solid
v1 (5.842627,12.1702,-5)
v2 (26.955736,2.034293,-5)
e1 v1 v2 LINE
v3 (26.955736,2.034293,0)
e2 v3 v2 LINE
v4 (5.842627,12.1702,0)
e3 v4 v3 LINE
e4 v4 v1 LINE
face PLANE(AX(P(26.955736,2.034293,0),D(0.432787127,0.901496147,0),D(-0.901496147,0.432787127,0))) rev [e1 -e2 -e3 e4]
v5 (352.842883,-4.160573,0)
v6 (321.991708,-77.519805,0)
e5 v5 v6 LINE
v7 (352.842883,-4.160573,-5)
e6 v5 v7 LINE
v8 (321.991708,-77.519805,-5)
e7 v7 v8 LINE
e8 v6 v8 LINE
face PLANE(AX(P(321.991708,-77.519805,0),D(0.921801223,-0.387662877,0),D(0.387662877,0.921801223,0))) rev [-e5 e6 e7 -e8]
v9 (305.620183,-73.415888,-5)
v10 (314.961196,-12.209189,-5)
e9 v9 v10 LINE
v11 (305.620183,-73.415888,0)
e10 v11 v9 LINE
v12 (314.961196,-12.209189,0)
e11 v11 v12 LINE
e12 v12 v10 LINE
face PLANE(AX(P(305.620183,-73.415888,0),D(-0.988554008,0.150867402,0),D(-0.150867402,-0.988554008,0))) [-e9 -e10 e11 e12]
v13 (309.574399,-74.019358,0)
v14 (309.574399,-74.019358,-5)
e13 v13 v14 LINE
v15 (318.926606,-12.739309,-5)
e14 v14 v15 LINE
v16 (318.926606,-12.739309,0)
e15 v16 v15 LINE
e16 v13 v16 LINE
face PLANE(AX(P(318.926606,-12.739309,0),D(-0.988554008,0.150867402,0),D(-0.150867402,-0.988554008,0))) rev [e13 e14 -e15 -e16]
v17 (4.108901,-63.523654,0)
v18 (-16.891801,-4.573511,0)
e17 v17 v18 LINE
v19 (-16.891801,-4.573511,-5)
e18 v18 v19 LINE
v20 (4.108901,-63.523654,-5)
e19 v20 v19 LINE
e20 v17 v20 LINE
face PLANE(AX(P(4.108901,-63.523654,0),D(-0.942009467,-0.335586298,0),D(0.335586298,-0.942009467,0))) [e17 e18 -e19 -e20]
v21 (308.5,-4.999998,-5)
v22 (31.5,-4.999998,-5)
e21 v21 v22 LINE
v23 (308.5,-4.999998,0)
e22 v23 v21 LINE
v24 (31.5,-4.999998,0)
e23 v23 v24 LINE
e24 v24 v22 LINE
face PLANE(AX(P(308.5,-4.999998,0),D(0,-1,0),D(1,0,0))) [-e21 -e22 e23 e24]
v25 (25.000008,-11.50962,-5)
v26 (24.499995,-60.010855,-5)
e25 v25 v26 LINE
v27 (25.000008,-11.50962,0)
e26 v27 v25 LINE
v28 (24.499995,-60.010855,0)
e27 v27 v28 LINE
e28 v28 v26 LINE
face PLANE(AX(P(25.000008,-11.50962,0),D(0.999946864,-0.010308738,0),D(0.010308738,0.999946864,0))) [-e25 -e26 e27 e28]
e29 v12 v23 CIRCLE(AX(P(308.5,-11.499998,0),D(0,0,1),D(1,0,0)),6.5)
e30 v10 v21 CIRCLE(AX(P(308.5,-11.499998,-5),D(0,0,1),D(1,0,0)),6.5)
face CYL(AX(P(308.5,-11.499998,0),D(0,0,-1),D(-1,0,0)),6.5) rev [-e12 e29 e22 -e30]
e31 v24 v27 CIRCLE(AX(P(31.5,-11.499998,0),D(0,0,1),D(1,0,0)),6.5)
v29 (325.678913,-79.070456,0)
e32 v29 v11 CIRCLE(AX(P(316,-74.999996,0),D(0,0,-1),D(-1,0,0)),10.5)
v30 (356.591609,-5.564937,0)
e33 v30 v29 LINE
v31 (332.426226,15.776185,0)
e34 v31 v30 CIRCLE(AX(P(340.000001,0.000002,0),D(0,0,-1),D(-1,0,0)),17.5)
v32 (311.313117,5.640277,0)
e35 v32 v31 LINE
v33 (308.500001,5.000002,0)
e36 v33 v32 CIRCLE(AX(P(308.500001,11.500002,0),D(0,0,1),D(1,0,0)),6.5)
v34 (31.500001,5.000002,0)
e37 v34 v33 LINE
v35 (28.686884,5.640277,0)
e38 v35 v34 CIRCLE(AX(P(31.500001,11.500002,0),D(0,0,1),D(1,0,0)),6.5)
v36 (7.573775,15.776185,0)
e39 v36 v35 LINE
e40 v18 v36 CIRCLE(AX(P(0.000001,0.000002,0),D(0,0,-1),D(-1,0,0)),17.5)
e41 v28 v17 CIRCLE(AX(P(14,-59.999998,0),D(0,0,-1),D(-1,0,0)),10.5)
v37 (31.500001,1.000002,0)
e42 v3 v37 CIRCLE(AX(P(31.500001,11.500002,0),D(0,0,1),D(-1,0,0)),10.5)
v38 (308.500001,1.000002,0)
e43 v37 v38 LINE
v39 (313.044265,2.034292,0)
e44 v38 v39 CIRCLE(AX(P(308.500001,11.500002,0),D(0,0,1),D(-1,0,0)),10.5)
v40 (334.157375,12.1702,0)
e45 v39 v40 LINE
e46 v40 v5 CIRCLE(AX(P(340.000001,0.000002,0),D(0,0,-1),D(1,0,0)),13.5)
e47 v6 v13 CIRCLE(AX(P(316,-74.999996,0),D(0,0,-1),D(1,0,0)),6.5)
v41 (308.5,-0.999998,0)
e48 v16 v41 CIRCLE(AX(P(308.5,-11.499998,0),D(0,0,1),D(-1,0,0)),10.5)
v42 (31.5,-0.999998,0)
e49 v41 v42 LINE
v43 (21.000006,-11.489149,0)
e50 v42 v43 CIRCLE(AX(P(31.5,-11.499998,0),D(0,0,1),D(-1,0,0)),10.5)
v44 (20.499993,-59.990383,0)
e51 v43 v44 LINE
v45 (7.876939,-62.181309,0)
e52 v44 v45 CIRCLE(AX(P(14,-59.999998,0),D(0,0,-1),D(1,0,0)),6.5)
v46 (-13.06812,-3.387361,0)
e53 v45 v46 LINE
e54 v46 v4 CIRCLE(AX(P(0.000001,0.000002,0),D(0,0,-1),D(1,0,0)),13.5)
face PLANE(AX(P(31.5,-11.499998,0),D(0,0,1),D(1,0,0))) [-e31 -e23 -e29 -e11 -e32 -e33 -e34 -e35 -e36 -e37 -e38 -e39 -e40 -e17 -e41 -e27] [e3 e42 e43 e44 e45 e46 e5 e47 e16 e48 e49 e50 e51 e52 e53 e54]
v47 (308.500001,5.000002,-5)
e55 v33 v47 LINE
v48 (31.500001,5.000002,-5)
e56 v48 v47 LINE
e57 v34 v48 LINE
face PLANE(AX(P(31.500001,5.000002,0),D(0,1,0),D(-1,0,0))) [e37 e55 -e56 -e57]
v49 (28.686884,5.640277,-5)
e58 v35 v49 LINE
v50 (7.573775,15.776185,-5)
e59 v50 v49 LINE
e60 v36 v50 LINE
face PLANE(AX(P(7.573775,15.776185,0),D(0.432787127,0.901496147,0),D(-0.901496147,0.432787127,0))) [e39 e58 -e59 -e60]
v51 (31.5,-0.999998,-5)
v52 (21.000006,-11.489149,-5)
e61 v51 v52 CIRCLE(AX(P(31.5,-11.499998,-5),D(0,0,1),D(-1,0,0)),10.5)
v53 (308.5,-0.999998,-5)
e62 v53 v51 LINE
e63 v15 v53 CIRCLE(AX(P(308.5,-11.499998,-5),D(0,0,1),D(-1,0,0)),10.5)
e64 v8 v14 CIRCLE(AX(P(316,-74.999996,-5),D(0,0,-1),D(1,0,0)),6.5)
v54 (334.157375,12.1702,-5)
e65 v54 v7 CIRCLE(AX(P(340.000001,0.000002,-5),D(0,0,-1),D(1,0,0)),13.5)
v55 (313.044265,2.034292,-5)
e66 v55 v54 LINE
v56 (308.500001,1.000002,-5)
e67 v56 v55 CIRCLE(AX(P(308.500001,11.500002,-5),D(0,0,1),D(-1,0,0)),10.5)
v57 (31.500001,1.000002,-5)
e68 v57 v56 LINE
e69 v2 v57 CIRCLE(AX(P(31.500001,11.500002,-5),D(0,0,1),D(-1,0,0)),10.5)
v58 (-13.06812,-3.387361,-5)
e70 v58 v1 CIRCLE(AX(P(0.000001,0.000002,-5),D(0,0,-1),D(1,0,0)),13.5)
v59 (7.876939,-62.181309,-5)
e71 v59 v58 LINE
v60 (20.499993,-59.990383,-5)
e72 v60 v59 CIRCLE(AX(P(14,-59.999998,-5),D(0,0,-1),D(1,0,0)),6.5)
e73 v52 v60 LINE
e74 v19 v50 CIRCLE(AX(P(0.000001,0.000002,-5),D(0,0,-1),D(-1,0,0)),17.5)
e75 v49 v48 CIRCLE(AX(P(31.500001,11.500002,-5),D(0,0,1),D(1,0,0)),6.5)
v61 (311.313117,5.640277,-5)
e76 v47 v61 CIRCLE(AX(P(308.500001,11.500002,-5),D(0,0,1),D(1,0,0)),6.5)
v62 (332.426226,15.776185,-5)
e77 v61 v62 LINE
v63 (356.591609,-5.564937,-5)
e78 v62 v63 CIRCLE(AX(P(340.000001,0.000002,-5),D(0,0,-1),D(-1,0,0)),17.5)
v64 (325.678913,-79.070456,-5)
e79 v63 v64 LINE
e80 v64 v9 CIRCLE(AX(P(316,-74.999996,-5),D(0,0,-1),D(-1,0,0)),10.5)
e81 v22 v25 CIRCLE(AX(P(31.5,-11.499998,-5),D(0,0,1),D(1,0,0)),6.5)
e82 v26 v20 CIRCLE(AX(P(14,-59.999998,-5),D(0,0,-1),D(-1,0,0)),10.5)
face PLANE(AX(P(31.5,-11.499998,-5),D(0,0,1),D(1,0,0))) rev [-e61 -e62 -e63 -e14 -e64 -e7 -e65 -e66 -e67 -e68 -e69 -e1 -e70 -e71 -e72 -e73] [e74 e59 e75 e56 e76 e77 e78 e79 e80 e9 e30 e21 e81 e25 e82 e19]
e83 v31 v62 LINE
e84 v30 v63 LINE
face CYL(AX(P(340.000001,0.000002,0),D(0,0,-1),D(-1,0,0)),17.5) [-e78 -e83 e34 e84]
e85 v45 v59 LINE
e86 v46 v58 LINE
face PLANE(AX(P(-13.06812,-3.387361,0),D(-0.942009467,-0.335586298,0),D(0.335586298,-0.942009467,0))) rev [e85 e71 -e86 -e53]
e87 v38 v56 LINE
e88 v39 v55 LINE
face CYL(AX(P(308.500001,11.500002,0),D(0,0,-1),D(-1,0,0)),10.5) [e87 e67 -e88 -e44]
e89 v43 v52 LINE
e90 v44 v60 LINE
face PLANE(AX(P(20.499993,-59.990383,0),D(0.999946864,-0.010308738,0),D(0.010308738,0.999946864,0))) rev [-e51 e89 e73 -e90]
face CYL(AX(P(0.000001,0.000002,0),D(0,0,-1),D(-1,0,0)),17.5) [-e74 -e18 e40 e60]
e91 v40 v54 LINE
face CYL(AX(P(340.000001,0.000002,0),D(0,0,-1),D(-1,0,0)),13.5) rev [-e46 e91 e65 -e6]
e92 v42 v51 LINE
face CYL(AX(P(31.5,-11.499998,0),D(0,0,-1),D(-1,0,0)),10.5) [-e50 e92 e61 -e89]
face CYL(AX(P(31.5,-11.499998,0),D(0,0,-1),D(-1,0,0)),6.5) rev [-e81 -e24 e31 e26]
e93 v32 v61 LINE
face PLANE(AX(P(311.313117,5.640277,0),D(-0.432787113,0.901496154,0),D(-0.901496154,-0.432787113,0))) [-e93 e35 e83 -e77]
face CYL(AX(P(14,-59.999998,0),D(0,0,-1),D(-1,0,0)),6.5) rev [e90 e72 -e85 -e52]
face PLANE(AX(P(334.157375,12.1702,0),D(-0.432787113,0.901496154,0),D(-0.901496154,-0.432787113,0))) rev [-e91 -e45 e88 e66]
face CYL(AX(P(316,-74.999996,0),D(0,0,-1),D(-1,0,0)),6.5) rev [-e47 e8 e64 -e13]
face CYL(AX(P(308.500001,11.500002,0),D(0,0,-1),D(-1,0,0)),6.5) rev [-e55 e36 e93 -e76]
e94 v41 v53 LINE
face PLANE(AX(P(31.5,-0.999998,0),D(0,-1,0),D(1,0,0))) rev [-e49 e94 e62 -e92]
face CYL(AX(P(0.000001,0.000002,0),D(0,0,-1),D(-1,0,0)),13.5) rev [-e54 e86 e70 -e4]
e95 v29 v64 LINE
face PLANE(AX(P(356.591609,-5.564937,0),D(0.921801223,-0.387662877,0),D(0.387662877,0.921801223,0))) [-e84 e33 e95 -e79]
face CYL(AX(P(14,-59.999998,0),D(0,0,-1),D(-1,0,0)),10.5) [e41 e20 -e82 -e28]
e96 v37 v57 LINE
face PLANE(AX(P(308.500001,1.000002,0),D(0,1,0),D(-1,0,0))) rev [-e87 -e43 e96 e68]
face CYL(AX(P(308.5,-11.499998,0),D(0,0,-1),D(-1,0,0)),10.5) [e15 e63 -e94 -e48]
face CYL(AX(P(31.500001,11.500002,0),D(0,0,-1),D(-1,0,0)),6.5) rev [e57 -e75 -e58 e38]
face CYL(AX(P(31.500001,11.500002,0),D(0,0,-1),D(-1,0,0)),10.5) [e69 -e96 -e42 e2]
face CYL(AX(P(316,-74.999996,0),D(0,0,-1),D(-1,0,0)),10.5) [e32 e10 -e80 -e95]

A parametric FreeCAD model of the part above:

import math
import FreeCAD as App
import Part
import Sketcher

V = App.Vector

doc = App.newDocument("Part")
body = doc.addObject("PartDesign::Body", "Body")

# Sketch on XY plane
sketch1 = body.newObject("Sketcher::SketchObject", "Sketch")
sketch1.AttachmentSupport = (doc.getObject("XY_Plane"), [""])
sketch1.MapMode = "FlatFace"
sketch1.AttachmentOffset = App.Placement(V(0, 0, -5), App.Rotation())
sketch1.addGeometry([
    Part.LineSegment(V(25.000008, -11.50962, 0), V(24.499995, -60.010855, 0)),  # 0
    Part.ArcOfCircle(Part.Circle(V(14, -59.999998, 0), V(0, 0, 1), 10.5), math.radians(-160.391806), math.radians(-0.059246)),  # 1
    Part.LineSegment(V(4.108901, -63.523654, 0), V(-16.891801, -4.573511, 0)),  # 2
    Part.ArcOfCircle(Part.Circle(V(0.000001, 0.000002, 0), V(0, 0, 1), 17.5), math.radians(64.355431), math.radians(195.149802)),  # 3
    Part.LineSegment(V(7.573775, 15.776185, 0), V(28.686884, 5.640277, 0)),  # 4
    Part.ArcOfCircle(Part.Circle(V(31.500001, 11.500002, 0), V(0, 0, 1), 6.5), math.radians(-115.644569), math.radians(-90)),  # 5
    Part.LineSegment(V(31.500001, 5.000002, 0), V(308.500001, 5.000002, 0)),  # 6
    Part.ArcOfCircle(Part.Circle(V(308.500001, 11.500002, 0), V(0, 0, 1), 6.5), math.radians(-90), math.radians(-64.355432)),  # 7
    Part.LineSegment(V(311.313117, 5.640277, 0), V(332.426226, 15.776185, 0)),  # 8
    Part.ArcOfCircle(Part.Circle(V(340.000001, 0.000002, 0), V(0, 0, 1), 17.5), math.radians(-18.541804), math.radians(115.644568)),  # 9
    Part.LineSegment(V(356.591609, -5.564937, 0), V(325.678913, -79.070456, 0)),  # 10
    Part.ArcOfCircle(Part.Circle(V(316, -74.999996, 0), V(0, 0, 1), 10.5), math.radians(171.322803), math.radians(337.190845)),  # 11
    Part.LineSegment(V(305.620183, -73.415888, 0), V(314.961196, -12.209189, 0)),  # 12
    Part.ArcOfCircle(Part.Circle(V(308.5, -11.499998, 0), V(0, 0, 1), 6.5), math.radians(-6.263802), math.radians(90)),  # 13
    Part.LineSegment(V(308.5, -4.999998, 0), V(31.5, -4.999998, 0)),  # 14
    Part.ArcOfCircle(Part.Circle(V(31.5, -11.499998, 0), V(0, 0, 1), 6.5), math.radians(90), math.radians(180.084815)),  # 15
    Part.ArcOfCircle(Part.Circle(V(31.5, -11.499998, 0), V(0, 0, 1), 10.5), math.radians(90), math.radians(179.940801)),  # 16
    Part.LineSegment(V(31.5, -0.999998, 0), V(308.5, -0.999998, 0)),  # 17
    Part.ArcOfCircle(Part.Circle(V(308.5, -11.499998, 0), V(0, 0, 1), 10.5), math.radians(-6.778401), math.radians(90)),  # 18
    Part.LineSegment(V(318.926606, -12.739309, 0), V(309.574399, -74.019358, 0)),  # 19
    Part.ArcOfCircle(Part.Circle(V(316, -74.999996, 0), V(0, 0, 1), 6.5), math.radians(171.322803), math.radians(337.190845)),  # 20
    Part.LineSegment(V(321.991708, -77.519805, 0), V(352.842883, -4.160573, 0)),  # 21
    Part.ArcOfCircle(Part.Circle(V(340.000001, 0.000002, 0), V(0, 0, 1), 13.5), math.radians(-17.95023), math.radians(115.644568)),  # 22
    Part.LineSegment(V(334.157375, 12.1702, 0), V(313.044265, 2.034292, 0)),  # 23
    Part.ArcOfCircle(Part.Circle(V(308.500001, 11.500002, 0), V(0, 0, 1), 10.5), math.radians(-90), math.radians(-64.355432)),  # 24
    Part.LineSegment(V(308.500001, 1.000002, 0), V(31.500001, 1.000002, 0)),  # 25
    Part.ArcOfCircle(Part.Circle(V(31.500001, 11.500002, 0), V(0, 0, 1), 10.5), math.radians(-115.644569), math.radians(-90)),  # 26
    Part.LineSegment(V(26.955736, 2.034293, 0), V(5.842627, 12.1702, 0)),  # 27
    Part.ArcOfCircle(Part.Circle(V(0.000001, 0.000002, 0), V(0, 0, 1), 13.5), math.radians(64.355431), math.radians(194.531712)),  # 28
    Part.LineSegment(V(-13.06812, -3.387361, 0), V(7.876939, -62.181309, 0)),  # 29
    Part.ArcOfCircle(Part.Circle(V(14, -59.999998, 0), V(0, 0, 1), 6.5), math.radians(-160.391806), math.radians(0.084756)),  # 30
    Part.LineSegment(V(20.499993, -59.990383, 0), V(21.000006, -11.489149, 0)),  # 31
], False)
sketch1.addConstraint([
    Sketcher.Constraint("Coincident", 0, 2, 1, 2),
    Sketcher.Constraint("Coincident", 1, 1, 2, 1),
    Sketcher.Constraint("Coincident", 2, 2, 3, 2),
    Sketcher.Constraint("Coincident", 3, 1, 4, 1),
    Sketcher.Constraint("Coincident", 4, 2, 5, 1),
    Sketcher.Constraint("Coincident", 5, 2, 6, 1),
    Sketcher.Constraint("Coincident", 6, 2, 7, 1),
    Sketcher.Constraint("Coincident", 7, 2, 8, 1),
    Sketcher.Constraint("Coincident", 8, 2, 9, 2),
    Sketcher.Constraint("Coincident", 9, 1, 10, 1),
    Sketcher.Constraint("Coincident", 10, 2, 11, 2),
    Sketcher.Constraint("Coincident", 11, 1, 12, 1),
    Sketcher.Constraint("Coincident", 12, 2, 13, 1),
    Sketcher.Constraint("Coincident", 13, 2, 14, 1),
    Sketcher.Constraint("Coincident", 14, 2, 15, 1),
    Sketcher.Constraint("Coincident", 15, 2, 0, 1),
    Sketcher.Constraint("Coincident", 16, 1, 17, 1),
    Sketcher.Constraint("Coincident", 17, 2, 18, 2),
    Sketcher.Constraint("Coincident", 18, 1, 19, 1),
    Sketcher.Constraint("Coincident", 19, 2, 20, 1),
    Sketcher.Constraint("Coincident", 20, 2, 21, 1),
    Sketcher.Constraint("Coincident", 21, 2, 22, 1),
    Sketcher.Constraint("Coincident", 22, 2, 23, 1),
    Sketcher.Constraint("Coincident", 23, 2, 24, 2),
    Sketcher.Constraint("Coincident", 24, 1, 25, 1),
    Sketcher.Constraint("Coincident", 25, 2, 26, 2),
    Sketcher.Constraint("Coincident", 26, 1, 27, 1),
    Sketcher.Constraint("Coincident", 27, 2, 28, 1),
    Sketcher.Constraint("Coincident", 28, 2, 29, 1),
    Sketcher.Constraint("Coincident", 29, 2, 30, 1),
    Sketcher.Constraint("Coincident", 30, 2, 31, 1),
    Sketcher.Constraint("Coincident", 31, 2, 16, 2),
    Sketcher.Constraint("Horizontal", 6),
    Sketcher.Constraint("Horizontal", 14),
    Sketcher.Constraint("Horizontal", 17),
    Sketcher.Constraint("Horizontal", 25),
    Sketcher.Constraint("Coincident", 3, 3, -1, 1),
    Sketcher.Constraint("Coincident", 28, 3, -1, 1),
    Sketcher.Constraint("Coincident", 16, 3, 15, 3),
    Sketcher.Constraint("Coincident", 18, 3, 13, 3),
    Sketcher.Constraint("Coincident", 20, 3, 11, 3),
    Sketcher.Constraint("Coincident", 22, 3, 9, 3),
    Sketcher.Constraint("Coincident", 24, 3, 7, 3),
    Sketcher.Constraint("Coincident", 26, 3, 5, 3),
    Sketcher.Constraint("Coincident", 30, 3, 1, 3),
    Sketcher.Constraint("PointOnObject", 9, 3, -1),
    Sketcher.Constraint("Radius", 1, 10.5),
    Sketcher.Constraint("Radius", 3, 17.5),
    Sketcher.Constraint("Radius", 5, 6.5),
    Sketcher.Constraint("Radius", 7, 6.5),
    Sketcher.Constraint("Radius", 9, 17.5),
    Sketcher.Constraint("Radius", 11, 10.5),
    Sketcher.Constraint("Radius", 13, 6.5),
    Sketcher.Constraint("Radius", 15, 6.5),
    Sketcher.Constraint("Radius", 16, 10.5),
    Sketcher.Constraint("Radius", 20, 6.5),
    Sketcher.Constraint("Radius", 22, 13.5),
    Sketcher.Constraint("Radius", 24, 10.5),
    Sketcher.Constraint("Radius", 28, 13.5),
    Sketcher.Constraint("Radius", 30, 6.5),
    Sketcher.Constraint("DistanceX", 6, 1, 6, 2, 277.0),
    Sketcher.Constraint("DistanceX", 14, 2, 14, 1, 277.0),
    Sketcher.Constraint("DistanceX", 17, 1, 17, 2, 277.0),
    Sketcher.Constraint("DistanceX", 25, 2, 25, 1, 277.0),
    Sketcher.Constraint("DistanceX", -1, 1, 1, 3, 14.0),
    Sketcher.Constraint("DistanceX", -1, 1, 9, 3, 340.000001),
    Sketcher.Constraint("DistanceX", -1, 1, 11, 3, 316.0),
    Sketcher.Constraint("DistanceY", 1, 3, 3, 3, 60.0),
    Sketcher.Constraint("DistanceX", 5, 3, 7, 3, 277.0),
    Sketcher.Constraint("DistanceY", 11, 3, 1, 3, 14.999998),
    Sketcher.Constraint("DistanceY", 13, 3, 7, 3, 23.0),
    Sketcher.Constraint("DistanceX", 5, 3, 13, 3, 277.0),
    Sketcher.Constraint("DistanceX", 15, 3, 13, 3, 277.0),
    Sketcher.Constraint("DistanceY", 9, 3, 6, 2, 5.0),
    Sketcher.Constraint("DistanceX", -1, 1, 5, 3, 31.500001),
    Sketcher.Constraint("DistanceX", -1, 1, 5, 2, 31.500001),
    Sketcher.Constraint("DistanceX", -1, 1, 13, 2, 308.5),
    Sketcher.Constraint("DistanceX", -1, 1, 16, 1, 31.5),
    Sketcher.Constraint("DistanceX", -1, 1, 24, 1, 308.500001),
    Sketcher.Constraint("DistanceX", -1, 1, 1, 1, 4.108901),
    Sketcher.Constraint("DistanceX", 2, 2, -1, 1, 16.891801),
    Sketcher.Constraint("DistanceX", -1, 1, 19, 2, 309.574399),
    Sketcher.Constraint("DistanceY", -1, 1, 22, 2, 12.1702),
    Sketcher.Constraint("DistanceY", -1, 1, 27, 2, 12.1702),
    Sketcher.Constraint("DistanceY", 1, 1, 0, 2, 3.512799),
    Sketcher.Constraint("DistanceY", 10, 2, 19, 2, 5.051098),
    Sketcher.Constraint("Distance", 19, 61.989581),
    Sketcher.Constraint("Distance", 29, 62.41333),
    Sketcher.Constraint("Distance", 31, 48.503811),
    Sketcher.Constraint("DistanceX", -1, 1, 9, 1, 356.591609),
    Sketcher.Constraint("DistanceY", 11, 1, -1, 1, 73.415888),
    Sketcher.Constraint("DistanceY", 12, 2, -1, 1, 12.209189),
    Sketcher.Constraint("DistanceY", 15, 2, -1, 1, 11.50962),
    Sketcher.Constraint("DistanceX", 28, 2, -1, 1, 13.06812),
    Sketcher.Constraint("DistanceY", 31, 2, -1, 1, 11.489149),
    Sketcher.Constraint("DistanceX", 3, 1, 4, 2, 21.113109),
    Sketcher.Constraint("DistanceX", 7, 2, 8, 2, 21.113109),
    Sketcher.Constraint("DistanceY", 9, 1, 8, 2, 21.341121),
    Sketcher.Constraint("DistanceY", 10, 2, 20, 2, 1.550652),
    Sketcher.Constraint("DistanceX", 22, 3, 21, 2, 12.842882),
    Sketcher.Constraint("DistanceX", 7, 2, 23, 2, 1.731148),
    Sketcher.Constraint("DistanceX", 26, 1, 4, 2, 1.731149),
    Sketcher.Constraint("DistanceY", 25, 2, 26, 1, 1.03429),
])
pad1 = body.newObject("PartDesign::Pad", "Pad")
pad1.Profile = sketch1
pad1.Length = 5

doc.recompute()
